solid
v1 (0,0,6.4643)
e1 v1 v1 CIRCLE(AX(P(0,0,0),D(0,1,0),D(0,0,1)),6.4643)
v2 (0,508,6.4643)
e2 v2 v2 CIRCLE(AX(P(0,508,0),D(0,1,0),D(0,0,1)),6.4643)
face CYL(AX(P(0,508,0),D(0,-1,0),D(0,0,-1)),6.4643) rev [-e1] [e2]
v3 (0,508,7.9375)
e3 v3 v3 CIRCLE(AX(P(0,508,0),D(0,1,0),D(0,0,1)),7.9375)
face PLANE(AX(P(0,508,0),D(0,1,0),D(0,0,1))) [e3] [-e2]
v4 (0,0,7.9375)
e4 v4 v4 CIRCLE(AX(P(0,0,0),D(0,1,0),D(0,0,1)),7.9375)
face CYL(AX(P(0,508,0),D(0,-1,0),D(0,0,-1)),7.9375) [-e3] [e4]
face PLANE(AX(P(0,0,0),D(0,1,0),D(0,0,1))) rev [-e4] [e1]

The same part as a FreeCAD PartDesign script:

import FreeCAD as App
import Part
import Sketcher

V = App.Vector
Q = App.Units.Quantity

doc = App.newDocument("Part")
body = doc.addObject("PartDesign::Body", "Body")

sketch1 = body.newObject("Sketcher::SketchObject", "Sketch")
sketch1.AttachmentSupport = (doc.getObject("XZ_Plane"), [""])
sketch1.MapMode = "FlatFace"
sketch1.addGeometry([
    Part.Circle(V(0, 0, 0), V(0, 0, 1), 8),
    Part.Circle(V(0, 0, 0), V(0, 0, 1), 6),
], False)
sketch1.addConstraint([
    Sketcher.Constraint("Coincident", 0, 3, -1, 1),
    Sketcher.Constraint("Coincident", 1, 3, -1, 1),
    Sketcher.Constraint("Diameter", 0, Q("0.625 in")),
    Sketcher.Constraint("Diameter", 1, Q("0.509 in")),
])
pad1 = body.newObject("PartDesign::Pad", "Pad")
pad1.Profile = sketch1
pad1.Length = Q("20 in")
pad1.Reversed = True

doc.recompute()
